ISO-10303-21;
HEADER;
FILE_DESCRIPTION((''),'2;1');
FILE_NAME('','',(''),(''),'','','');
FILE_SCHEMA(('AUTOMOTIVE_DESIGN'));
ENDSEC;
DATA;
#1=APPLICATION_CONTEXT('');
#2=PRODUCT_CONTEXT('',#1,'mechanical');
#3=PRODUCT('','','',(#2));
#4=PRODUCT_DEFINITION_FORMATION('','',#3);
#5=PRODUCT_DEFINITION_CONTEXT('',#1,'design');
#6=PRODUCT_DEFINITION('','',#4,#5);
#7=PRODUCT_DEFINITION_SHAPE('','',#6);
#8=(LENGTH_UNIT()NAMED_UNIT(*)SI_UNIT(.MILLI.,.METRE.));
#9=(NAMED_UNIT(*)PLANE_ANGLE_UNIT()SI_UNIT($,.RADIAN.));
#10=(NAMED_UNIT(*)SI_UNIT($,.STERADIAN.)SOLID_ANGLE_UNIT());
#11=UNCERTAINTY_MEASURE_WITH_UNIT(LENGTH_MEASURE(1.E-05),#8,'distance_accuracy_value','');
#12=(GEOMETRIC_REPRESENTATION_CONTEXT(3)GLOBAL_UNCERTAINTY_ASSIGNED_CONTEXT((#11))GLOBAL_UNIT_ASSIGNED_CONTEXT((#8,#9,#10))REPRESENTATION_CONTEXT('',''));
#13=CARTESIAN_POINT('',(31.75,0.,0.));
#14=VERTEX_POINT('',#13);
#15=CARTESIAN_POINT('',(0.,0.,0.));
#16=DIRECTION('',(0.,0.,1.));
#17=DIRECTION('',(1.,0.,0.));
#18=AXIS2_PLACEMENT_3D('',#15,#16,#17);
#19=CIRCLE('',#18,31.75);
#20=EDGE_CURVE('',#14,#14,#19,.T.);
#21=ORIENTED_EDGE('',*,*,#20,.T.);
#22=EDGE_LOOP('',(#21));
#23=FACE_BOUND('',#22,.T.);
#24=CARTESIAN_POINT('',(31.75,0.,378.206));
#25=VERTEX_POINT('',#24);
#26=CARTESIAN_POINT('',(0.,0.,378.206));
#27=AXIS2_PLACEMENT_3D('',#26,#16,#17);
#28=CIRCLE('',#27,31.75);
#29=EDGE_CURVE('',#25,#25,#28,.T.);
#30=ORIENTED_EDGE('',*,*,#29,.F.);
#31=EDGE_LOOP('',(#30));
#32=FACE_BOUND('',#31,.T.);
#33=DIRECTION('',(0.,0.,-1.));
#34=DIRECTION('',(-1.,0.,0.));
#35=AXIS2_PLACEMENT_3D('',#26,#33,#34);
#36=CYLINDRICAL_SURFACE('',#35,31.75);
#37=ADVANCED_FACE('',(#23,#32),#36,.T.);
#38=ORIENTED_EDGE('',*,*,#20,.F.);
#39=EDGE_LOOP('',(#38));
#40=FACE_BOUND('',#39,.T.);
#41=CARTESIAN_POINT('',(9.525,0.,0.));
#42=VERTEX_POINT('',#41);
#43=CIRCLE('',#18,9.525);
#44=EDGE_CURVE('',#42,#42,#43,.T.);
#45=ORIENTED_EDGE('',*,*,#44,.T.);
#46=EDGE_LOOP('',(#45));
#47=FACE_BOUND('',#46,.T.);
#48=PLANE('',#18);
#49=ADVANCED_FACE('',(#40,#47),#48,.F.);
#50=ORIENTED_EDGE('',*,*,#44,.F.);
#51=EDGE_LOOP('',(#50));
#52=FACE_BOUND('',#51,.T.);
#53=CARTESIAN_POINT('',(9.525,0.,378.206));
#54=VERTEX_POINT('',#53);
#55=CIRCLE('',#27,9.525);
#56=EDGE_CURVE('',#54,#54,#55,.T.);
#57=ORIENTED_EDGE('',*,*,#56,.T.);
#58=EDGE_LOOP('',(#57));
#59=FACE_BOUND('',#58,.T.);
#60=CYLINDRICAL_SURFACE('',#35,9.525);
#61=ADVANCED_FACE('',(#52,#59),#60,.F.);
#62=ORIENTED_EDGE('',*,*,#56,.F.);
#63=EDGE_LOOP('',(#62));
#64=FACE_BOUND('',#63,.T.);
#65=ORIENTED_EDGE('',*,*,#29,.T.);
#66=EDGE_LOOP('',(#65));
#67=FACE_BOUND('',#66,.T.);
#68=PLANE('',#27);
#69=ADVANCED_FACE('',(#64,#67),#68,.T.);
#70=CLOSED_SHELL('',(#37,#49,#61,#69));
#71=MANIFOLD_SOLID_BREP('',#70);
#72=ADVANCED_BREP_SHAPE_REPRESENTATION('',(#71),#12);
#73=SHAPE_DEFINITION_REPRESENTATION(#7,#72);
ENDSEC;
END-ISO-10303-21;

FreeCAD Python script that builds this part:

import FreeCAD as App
import Part
import Sketcher
Q = App.Units.Quantity

doc = App.newDocument("Part")
body = doc.addObject("PartDesign::Body", "Body")

sketch1 = body.newObject("Sketcher::SketchObject", "Sketch")
sketch1.AttachmentSupport = (doc.getObject("XY_Plane"), [""])
sketch1.MapMode = "FlatFace"
sketch1.addGeometry([
    Part.Circle(App.Vector(0, 0, 0), App.Vector(0, 0, 1), 32),
    Part.Circle(App.Vector(0, 0, 0), App.Vector(0, 0, 1), 10),
], False)
sketch1.addConstraint([
    Sketcher.Constraint("Coincident", 0, 3, -1, 1),
    Sketcher.Constraint("Coincident", 1, 3, -1, 1),
    Sketcher.Constraint("Diameter", 0, Q("2.5 in")),
    Sketcher.Constraint("Diameter", 1, Q("0.75 in")),
])
pad1 = body.newObject("PartDesign::Pad", "Pad")
pad1.Profile = sketch1
pad1.Length = Q("14.89 in")

doc.recompute()
